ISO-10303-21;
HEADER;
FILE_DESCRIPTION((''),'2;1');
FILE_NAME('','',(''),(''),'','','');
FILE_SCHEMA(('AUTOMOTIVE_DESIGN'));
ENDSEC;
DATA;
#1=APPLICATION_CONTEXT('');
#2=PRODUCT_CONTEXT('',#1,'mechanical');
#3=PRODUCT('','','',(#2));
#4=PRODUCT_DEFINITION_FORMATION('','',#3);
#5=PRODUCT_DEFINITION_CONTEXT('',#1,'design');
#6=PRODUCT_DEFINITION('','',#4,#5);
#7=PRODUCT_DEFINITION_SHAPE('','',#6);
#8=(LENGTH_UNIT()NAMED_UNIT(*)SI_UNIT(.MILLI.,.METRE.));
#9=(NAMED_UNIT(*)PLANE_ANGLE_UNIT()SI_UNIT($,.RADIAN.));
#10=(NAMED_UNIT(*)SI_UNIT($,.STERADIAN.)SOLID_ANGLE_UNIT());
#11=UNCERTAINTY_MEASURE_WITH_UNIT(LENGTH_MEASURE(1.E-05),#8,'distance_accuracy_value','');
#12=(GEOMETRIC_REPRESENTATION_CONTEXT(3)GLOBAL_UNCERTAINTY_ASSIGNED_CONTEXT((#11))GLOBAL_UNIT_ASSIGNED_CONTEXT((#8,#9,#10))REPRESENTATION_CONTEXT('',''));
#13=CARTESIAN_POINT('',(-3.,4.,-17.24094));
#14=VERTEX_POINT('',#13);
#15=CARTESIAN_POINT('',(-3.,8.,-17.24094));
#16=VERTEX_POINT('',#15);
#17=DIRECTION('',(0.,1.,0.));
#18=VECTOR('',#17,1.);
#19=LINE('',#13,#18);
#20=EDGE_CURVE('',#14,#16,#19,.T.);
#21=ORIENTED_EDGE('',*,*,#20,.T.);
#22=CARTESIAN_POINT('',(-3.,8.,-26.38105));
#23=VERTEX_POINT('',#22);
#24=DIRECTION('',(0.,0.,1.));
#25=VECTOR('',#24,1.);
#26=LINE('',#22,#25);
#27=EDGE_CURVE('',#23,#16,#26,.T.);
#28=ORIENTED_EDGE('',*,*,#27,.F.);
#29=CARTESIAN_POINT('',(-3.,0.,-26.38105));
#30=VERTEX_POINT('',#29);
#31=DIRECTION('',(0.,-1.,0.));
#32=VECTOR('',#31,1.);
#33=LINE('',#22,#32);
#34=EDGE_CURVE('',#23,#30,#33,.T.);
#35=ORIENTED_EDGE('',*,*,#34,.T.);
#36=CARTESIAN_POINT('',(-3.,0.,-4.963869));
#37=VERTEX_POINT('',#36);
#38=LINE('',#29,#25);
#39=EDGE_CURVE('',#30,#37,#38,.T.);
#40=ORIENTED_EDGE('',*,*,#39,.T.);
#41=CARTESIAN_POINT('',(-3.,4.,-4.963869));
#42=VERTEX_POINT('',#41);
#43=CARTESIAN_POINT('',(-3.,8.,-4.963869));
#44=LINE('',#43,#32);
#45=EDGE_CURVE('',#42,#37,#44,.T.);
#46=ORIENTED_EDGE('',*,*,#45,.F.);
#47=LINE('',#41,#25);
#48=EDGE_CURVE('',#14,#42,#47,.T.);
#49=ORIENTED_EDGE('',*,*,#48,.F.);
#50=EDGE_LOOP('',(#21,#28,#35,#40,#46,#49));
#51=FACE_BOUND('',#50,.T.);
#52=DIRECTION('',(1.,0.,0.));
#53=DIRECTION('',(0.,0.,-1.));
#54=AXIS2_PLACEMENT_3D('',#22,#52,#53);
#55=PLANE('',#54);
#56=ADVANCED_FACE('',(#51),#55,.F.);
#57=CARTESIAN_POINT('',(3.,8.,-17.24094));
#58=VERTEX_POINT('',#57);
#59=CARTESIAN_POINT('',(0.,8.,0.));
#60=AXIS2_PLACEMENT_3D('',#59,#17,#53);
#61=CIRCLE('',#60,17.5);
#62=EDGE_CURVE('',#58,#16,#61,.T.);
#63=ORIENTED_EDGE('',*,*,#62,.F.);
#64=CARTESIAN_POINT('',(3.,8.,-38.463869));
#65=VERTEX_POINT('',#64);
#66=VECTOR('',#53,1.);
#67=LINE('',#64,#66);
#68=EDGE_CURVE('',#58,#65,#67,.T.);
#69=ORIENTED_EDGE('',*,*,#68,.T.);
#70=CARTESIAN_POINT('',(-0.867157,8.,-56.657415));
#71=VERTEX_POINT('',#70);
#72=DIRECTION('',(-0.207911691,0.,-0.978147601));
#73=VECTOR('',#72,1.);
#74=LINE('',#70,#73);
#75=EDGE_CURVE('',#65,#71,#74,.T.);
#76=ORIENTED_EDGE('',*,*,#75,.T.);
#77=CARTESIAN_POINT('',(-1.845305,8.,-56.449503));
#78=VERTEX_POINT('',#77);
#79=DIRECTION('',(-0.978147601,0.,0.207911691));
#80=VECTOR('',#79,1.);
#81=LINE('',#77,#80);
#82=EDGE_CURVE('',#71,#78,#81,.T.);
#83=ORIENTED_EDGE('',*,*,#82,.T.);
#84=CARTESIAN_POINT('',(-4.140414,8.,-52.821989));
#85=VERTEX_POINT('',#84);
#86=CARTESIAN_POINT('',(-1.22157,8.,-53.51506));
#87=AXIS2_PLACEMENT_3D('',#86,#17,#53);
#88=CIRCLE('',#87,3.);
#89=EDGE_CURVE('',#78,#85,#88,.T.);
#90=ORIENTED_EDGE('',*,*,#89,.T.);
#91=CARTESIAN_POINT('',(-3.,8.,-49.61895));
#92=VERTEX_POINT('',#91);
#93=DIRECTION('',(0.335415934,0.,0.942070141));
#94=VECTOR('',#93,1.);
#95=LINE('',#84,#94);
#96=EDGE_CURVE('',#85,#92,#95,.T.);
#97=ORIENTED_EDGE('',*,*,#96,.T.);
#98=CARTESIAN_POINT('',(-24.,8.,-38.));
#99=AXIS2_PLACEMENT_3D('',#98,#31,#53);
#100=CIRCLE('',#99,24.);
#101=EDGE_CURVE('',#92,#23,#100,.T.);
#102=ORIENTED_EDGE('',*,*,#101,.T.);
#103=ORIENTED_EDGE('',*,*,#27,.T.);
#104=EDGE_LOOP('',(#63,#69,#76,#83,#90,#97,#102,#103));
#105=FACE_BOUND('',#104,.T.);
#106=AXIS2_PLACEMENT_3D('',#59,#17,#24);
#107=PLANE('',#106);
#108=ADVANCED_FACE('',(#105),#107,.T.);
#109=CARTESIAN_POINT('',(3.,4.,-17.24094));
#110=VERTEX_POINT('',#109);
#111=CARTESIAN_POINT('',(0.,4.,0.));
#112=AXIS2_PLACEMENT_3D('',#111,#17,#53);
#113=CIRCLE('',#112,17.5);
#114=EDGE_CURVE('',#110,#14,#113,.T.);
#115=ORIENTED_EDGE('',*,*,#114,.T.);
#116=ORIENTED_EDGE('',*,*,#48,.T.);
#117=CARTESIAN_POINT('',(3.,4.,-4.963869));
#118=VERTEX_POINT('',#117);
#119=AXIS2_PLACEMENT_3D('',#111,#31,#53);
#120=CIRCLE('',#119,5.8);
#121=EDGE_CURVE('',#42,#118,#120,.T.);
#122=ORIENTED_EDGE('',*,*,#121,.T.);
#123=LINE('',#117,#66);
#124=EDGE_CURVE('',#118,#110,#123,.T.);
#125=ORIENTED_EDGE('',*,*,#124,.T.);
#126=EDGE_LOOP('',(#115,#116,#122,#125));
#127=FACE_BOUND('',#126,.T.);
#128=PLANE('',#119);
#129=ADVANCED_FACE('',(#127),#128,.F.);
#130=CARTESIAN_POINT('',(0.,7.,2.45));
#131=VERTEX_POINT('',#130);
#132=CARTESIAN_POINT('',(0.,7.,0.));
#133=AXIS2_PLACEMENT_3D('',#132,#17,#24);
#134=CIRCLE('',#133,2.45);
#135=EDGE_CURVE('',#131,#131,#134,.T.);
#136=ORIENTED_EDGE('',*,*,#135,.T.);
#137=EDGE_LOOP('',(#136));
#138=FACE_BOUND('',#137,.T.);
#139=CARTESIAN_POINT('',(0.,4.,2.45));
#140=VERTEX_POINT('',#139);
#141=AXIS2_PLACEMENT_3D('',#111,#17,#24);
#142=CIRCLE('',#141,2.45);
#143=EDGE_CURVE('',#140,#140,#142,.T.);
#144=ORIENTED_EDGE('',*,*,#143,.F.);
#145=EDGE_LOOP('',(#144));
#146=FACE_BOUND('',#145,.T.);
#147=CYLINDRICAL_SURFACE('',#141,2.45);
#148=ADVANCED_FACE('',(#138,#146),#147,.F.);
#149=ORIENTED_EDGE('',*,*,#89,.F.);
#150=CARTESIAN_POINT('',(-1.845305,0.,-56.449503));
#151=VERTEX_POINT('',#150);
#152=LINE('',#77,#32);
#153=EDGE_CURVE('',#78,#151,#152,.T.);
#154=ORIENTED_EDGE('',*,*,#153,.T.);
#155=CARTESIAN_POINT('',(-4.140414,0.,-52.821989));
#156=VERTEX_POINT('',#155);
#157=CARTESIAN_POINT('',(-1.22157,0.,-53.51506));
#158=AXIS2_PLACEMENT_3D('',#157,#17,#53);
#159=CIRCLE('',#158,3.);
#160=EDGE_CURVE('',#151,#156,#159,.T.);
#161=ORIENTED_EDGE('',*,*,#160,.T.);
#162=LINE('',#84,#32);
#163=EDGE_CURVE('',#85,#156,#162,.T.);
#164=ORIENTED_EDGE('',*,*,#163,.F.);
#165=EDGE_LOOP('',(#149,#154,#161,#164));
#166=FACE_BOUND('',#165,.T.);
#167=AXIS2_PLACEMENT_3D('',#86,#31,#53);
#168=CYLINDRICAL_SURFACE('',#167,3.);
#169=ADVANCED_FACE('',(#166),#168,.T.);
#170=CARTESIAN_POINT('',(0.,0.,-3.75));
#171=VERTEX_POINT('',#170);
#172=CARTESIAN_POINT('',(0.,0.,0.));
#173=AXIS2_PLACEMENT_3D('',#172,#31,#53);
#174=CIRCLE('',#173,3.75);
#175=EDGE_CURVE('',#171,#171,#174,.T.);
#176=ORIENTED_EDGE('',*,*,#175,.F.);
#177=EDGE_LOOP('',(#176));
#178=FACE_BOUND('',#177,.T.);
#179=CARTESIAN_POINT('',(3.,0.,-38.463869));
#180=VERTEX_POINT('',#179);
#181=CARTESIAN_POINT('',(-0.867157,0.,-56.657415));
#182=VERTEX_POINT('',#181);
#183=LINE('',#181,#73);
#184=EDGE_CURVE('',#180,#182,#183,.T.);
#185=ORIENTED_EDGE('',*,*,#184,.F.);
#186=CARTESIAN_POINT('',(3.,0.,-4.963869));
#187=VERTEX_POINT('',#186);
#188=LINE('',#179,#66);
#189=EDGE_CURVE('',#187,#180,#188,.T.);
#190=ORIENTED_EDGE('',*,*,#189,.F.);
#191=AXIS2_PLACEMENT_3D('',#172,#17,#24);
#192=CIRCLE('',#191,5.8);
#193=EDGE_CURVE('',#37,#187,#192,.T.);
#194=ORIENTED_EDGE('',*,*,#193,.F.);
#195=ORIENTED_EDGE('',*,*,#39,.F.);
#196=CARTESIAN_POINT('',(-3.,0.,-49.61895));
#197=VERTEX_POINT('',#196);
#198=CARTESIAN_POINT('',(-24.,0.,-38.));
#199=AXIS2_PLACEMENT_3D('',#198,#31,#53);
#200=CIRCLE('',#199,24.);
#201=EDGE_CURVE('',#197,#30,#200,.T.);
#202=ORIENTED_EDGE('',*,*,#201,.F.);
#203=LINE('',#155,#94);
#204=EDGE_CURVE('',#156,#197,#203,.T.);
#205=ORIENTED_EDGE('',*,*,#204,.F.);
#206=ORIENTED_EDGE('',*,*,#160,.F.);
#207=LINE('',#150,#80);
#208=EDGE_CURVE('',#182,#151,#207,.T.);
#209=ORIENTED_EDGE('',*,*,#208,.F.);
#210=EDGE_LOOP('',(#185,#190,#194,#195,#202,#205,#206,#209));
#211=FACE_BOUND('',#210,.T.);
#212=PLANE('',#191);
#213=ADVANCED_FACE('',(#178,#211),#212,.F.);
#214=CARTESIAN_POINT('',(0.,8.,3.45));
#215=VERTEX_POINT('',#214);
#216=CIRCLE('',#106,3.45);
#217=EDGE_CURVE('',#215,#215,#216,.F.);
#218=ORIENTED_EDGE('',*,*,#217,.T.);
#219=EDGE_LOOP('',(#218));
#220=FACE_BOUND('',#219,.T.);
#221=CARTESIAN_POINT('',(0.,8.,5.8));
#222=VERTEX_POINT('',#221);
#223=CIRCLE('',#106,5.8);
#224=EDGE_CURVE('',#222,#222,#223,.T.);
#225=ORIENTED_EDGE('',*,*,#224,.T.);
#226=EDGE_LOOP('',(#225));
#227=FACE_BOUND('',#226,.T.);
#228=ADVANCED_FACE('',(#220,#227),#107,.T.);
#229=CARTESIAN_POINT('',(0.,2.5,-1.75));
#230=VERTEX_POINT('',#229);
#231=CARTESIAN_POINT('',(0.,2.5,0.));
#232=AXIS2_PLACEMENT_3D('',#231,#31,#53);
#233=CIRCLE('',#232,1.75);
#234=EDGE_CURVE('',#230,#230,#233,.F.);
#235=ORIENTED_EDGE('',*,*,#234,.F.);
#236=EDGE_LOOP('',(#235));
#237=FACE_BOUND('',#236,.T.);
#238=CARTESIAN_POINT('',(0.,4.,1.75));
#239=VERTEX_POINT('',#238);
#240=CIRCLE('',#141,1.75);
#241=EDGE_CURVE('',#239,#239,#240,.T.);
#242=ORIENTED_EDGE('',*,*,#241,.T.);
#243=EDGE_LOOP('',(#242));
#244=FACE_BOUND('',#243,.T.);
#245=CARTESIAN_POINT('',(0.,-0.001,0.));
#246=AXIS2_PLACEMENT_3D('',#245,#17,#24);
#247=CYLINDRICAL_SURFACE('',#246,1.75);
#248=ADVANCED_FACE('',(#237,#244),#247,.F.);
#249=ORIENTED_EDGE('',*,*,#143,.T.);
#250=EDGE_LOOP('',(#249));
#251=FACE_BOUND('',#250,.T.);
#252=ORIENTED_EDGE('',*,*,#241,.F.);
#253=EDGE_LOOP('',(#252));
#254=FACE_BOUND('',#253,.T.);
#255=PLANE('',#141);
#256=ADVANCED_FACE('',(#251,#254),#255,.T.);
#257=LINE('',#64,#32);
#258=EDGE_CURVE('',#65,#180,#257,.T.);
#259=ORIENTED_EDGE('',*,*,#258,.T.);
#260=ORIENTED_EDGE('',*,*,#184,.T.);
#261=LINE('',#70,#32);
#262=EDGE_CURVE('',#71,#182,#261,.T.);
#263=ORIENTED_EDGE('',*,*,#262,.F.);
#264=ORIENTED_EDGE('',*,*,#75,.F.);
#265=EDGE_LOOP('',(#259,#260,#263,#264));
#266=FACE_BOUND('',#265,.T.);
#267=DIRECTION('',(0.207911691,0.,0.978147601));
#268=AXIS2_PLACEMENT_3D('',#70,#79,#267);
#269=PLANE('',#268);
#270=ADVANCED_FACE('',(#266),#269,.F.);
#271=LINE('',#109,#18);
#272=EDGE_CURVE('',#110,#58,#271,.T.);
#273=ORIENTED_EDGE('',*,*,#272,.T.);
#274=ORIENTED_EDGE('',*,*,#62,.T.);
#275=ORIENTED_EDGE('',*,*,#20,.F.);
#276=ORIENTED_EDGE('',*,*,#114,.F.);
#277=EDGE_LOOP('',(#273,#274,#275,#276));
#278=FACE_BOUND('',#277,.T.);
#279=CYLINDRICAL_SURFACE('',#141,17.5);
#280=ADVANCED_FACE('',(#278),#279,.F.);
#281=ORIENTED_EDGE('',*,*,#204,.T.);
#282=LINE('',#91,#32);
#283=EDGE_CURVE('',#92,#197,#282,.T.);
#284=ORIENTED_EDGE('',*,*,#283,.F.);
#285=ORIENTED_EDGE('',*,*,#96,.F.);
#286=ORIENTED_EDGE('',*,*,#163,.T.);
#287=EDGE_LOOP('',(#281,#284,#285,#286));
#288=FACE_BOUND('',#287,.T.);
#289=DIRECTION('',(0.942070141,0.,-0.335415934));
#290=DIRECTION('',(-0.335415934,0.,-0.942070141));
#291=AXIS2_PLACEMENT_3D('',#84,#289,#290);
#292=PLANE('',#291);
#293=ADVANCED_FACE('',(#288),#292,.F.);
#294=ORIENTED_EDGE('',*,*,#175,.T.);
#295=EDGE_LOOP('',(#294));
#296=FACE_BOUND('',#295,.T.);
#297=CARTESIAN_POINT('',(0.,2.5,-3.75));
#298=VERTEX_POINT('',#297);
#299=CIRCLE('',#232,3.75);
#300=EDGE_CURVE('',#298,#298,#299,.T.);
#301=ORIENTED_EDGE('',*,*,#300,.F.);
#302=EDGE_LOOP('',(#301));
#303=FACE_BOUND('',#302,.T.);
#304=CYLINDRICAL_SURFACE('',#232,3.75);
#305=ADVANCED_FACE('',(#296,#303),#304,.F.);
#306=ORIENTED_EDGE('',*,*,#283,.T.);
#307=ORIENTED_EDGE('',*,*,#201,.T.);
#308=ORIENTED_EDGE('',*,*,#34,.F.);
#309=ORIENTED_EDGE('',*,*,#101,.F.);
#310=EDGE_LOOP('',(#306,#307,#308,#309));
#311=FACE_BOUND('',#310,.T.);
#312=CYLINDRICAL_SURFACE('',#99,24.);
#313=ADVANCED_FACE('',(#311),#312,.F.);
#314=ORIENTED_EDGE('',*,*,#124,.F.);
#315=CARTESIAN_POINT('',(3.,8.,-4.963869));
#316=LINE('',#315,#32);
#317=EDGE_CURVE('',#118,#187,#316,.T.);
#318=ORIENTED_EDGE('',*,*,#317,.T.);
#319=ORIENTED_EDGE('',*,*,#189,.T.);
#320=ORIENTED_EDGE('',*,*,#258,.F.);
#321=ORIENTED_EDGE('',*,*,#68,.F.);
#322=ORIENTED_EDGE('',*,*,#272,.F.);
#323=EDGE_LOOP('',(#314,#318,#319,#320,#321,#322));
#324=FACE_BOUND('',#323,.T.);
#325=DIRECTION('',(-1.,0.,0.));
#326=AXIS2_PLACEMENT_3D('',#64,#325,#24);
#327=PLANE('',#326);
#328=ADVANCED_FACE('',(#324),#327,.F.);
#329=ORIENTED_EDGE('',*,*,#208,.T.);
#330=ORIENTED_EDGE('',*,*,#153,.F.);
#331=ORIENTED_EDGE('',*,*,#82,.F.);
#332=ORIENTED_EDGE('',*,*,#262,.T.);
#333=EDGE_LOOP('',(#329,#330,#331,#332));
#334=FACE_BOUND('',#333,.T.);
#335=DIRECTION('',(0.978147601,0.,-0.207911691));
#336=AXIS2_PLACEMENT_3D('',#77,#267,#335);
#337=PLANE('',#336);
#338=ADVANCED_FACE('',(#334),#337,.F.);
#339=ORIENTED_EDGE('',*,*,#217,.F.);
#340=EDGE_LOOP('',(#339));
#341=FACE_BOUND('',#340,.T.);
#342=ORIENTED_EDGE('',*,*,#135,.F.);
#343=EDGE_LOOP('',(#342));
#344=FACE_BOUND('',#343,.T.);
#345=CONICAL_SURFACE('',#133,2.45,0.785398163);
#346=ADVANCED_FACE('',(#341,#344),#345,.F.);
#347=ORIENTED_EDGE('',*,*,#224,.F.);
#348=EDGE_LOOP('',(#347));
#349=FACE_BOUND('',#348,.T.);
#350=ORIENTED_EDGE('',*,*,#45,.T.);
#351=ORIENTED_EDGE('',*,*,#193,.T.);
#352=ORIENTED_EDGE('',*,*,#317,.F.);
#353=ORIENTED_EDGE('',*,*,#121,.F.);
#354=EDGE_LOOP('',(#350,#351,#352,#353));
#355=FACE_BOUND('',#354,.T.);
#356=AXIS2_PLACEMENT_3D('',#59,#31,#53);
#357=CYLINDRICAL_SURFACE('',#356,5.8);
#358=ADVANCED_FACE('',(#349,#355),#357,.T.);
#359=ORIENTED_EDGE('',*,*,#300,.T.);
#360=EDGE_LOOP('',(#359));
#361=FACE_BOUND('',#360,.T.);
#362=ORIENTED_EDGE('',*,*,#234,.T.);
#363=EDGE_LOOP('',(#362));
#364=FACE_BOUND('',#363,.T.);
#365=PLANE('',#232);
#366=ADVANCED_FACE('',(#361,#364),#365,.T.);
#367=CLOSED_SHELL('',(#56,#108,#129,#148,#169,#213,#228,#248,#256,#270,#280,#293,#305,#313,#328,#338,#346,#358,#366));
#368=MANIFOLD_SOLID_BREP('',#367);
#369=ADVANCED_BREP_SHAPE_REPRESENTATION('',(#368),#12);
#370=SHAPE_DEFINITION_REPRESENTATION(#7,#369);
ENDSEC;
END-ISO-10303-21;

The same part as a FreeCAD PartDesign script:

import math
import FreeCAD as App
import Part
import Sketcher
from FreeCAD import Vector
Q = App.Units.Quantity


def edges_at(feature, points):
    """Names of the edges that pass closest to the given points."""
    edges = feature.Shape.Edges
    near = lambda p: min(range(len(edges)), key=lambda i: edges[i].distToShape(Part.Vertex(*p))[0])
    return sorted({f"Edge{near(p) + 1}" for p in points})

doc = App.newDocument("Part")
body = doc.addObject("PartDesign::Body", "Body")

# Sketch on XZ plane
sketch1 = doc.addObject("Sketcher::SketchObject", "Sketch")
body.addObject(sketch1)
sketch1.AttachmentSupport = (doc.XZ_Plane, [""])
sketch1.MapMode = "FlatFace"
sketch1.addGeometry(Part.LineSegment(Vector(-3, -26.4, 0), Vector(-3, -5, 0)), False)
sketch1.addGeometry(Part.ArcOfCircle(Part.Circle(Vector(0, 0, 0), Vector(0, 0, 1), 5.8), math.radians(-59), math.radians(239)), False)
sketch1.addGeometry(Part.LineSegment(Vector(3, -5, 0), Vector(3, -38.5, 0)), False)
sketch1.addGeometry(Part.LineSegment(Vector(3, -38.5, 0), Vector(-0.9, -56.7, 0)), False)
sketch1.addGeometry(Part.LineSegment(Vector(-0.9, -56.7, 0), Vector(-1.8, -56.4, 0)), False)
sketch1.addGeometry(Part.ArcOfCircle(Part.Circle(Vector(-1.2, -53.5, 0), Vector(0, 0, 1), 3), math.radians(167), math.radians(258)), False)
sketch1.addGeometry(Part.LineSegment(Vector(-4.1, -52.8, 0), Vector(-3, -49.6, 0)), False)
sketch1.addGeometry(Part.ArcOfCircle(Part.Circle(Vector(-24, -38, 0), Vector(0, 0, 1), 24), math.radians(-29), math.radians(29)), False)
sketch1.addConstraint(Sketcher.Constraint("Coincident", 0, 2, 1, 2))
sketch1.addConstraint(Sketcher.Constraint("Coincident", 1, 1, 2, 1))
sketch1.addConstraint(Sketcher.Constraint("Coincident", 2, 2, 3, 1))
sketch1.addConstraint(Sketcher.Constraint("Coincident", 3, 2, 4, 1))
sketch1.addConstraint(Sketcher.Constraint("Tangent", 4, 2, 5, 2))
sketch1.addConstraint(Sketcher.Constraint("Coincident", 5, 1, 6, 1))
sketch1.addConstraint(Sketcher.Constraint("Coincident", 6, 2, 7, 1))
sketch1.addConstraint(Sketcher.Constraint("Coincident", 7, 2, 0, 1))
sketch1.addConstraint(Sketcher.Constraint("Vertical", 0))
sketch1.addConstraint(Sketcher.Constraint("Vertical", 2))
sketch1.addConstraint(Sketcher.Constraint("Coincident", 1, 3, -1, 1))
sketch1.addConstraint(Sketcher.Constraint("Perpendicular", 3, 4))
sketch1.addConstraint(Sketcher.Constraint("Horizontal", 0, 2, 1, 1))
sketch1.addConstraint(Sketcher.Constraint("Vertical", 0, 2, 6, 2))
sketch1.addConstraint(Sketcher.Constraint("Radius", 5, 3.0))
sketch1.addConstraint(Sketcher.Constraint("Radius", 7, 24.0))
sketch1.addConstraint(Sketcher.Constraint("Radius", 1, 5.8))
sketch1.addConstraint(Sketcher.Constraint("Angle", 3, Q("-102 deg")))
sketch1.addConstraint(Sketcher.Constraint("Distance", 4, 1.0))
sketch1.addConstraint(Sketcher.Constraint("DistanceY", 2, 2, 2, 1, 33.5))
sketch1.addConstraint(Sketcher.Constraint("DistanceX", 7, 3, -1, 1, 24.0))
sketch1.addConstraint(Sketcher.Constraint("DistanceY", 7, 3, -1, 1, 38.0))
sketch1.addConstraint(Sketcher.Constraint("DistanceX", 0, 2, -1, 1, 3.0))
sketch1.addConstraint(Sketcher.Constraint("Distance", 3, 18.6))
sketch1.addConstraint(Sketcher.Constraint("Distance", 6, 3.4))
pad1 = doc.addObject("PartDesign::Pad", "Pad")
body.addObject(pad1)
pad1.Profile = sketch1
pad1.Length = 8
pad1.Reversed = True

# Sketch on XZ plane
sketch2 = doc.addObject("Sketcher::SketchObject", "Sketch001")
body.addObject(sketch2)
sketch2.AttachmentSupport = (doc.XZ_Plane, [""])
sketch2.MapMode = "FlatFace"
sketch2.AttachmentOffset = App.Placement(Vector(0, 0, -8), App.Rotation())
sketch2.addGeometry(Part.Circle(Vector(0, 0, 0), Vector(0, 0, 1), 2.5), False)
sketch2.addConstraint(Sketcher.Constraint("Coincident", 0, 3, -1, 1))
sketch2.addConstraint(Sketcher.Constraint("Diameter", 0, 4.9))
pocket1 = doc.addObject("PartDesign::Pocket", "Pocket")
body.addObject(pocket1)
pocket1.Profile = sketch2
pocket1.Length = 4
pocket1.Reversed = True

# Sketch on XZ plane
sketch3 = doc.addObject("Sketcher::SketchObject", "Sketch002")
body.addObject(sketch3)
sketch3.AttachmentSupport = (doc.XZ_Plane, [""])
sketch3.MapMode = "FlatFace"
sketch3.AttachmentOffset = App.Placement(Vector(0, 0, -4), App.Rotation())
sketch3.addGeometry(Part.Circle(Vector(0, 0, 0), Vector(0, 0, 1), 1.8), False)
sketch3.addConstraint(Sketcher.Constraint("Coincident", 0, 3, -1, 1))
sketch3.addConstraint(Sketcher.Constraint("Diameter", 0, 3.5))
pocket2 = doc.addObject("PartDesign::Pocket", "Pocket001")
body.addObject(pocket2)
pocket2.Profile = sketch3
pocket2.Type = "UpToFirst"
pocket2.Reversed = True

# Sketch on XZ plane
sketch4 = doc.addObject("Sketcher::SketchObject", "Sketch003")
body.addObject(sketch4)
sketch4.AttachmentSupport = (doc.XZ_Plane, [""])
sketch4.MapMode = "FlatFace"
sketch4.addGeometry(Part.Circle(Vector(0, 0, 0), Vector(0, 0, 1), 3.8), False)
sketch4.addConstraint(Sketcher.Constraint("Coincident", 0, 3, -1, 1))
sketch4.addConstraint(Sketcher.Constraint("Diameter", 0, 7.5))
pocket3 = doc.addObject("PartDesign::Pocket", "Pocket002")
body.addObject(pocket3)
pocket3.Profile = sketch4
pocket3.Length = 2.5

# Sketch on XZ plane
sketch5 = doc.addObject("Sketcher::SketchObject", "Sketch004")
body.addObject(sketch5)
sketch5.AttachmentSupport = (doc.XZ_Plane, [""])
sketch5.MapMode = "FlatFace"
sketch5.AttachmentOffset = App.Placement(Vector(0, 0, -8), App.Rotation())
sketch5.addGeometry(Part.LineSegment(Vector(-3, -17, 0), Vector(-3, -5, 0)), False)
sketch5.addGeometry(Part.ArcOfCircle(Part.Circle(Vector(0, 0, 0), Vector(0, 0, 1), 6), math.radians(-121), math.radians(-59)), False)
sketch5.addGeometry(Part.LineSegment(Vector(3, -5, 0), Vector(3, -17, 0)), False)
sketch5.addGeometry(Part.ArcOfCircle(Part.Circle(Vector(0, 0, 0), Vector(0, 0, 1), 18), math.radians(-99.87), math.radians(-80.13)), False)
sketch5.addConstraint(Sketcher.Constraint("Coincident", 0, 2, 1, 1))
sketch5.addConstraint(Sketcher.Constraint("Coincident", 1, 2, 2, 1))
sketch5.addConstraint(Sketcher.Constraint("Coincident", 2, 2, 3, 2))
sketch5.addConstraint(Sketcher.Constraint("Coincident", 3, 1, 0, 1))
sketch5.addConstraint(Sketcher.Constraint("Vertical", 0))
sketch5.addConstraint(Sketcher.Constraint("Vertical", 2))
sketch5.addConstraint(Sketcher.Constraint("Coincident", 1, 3, -1, 1))
sketch5.addConstraint(Sketcher.Constraint("Coincident", 3, 3, -1, 1))
sketch5.addConstraint(Sketcher.Constraint("Horizontal", 0, 2, 1, 2))
sketch5.addConstraint(Sketcher.Constraint("Radius", 1, 5.8))
sketch5.addConstraint(Sketcher.Constraint("Radius", 3, 17.5))
sketch5.addConstraint(Sketcher.Constraint("DistanceX", 0, 2, -1, 1, 3.0))
pocket4 = doc.addObject("PartDesign::Pocket", "Pocket003")
body.addObject(pocket4)
pocket4.Profile = sketch5
pocket4.Length = 4
pocket4.Reversed = True
doc.recompute()

chamfer = doc.addObject("PartDesign::Chamfer", "Chamfer")
body.addObject(chamfer)
chamfer.Base = (pocket4, edges_at(pocket4, [(-2.45, 8, 0)]))
chamfer.Size = 1

doc.recompute()
